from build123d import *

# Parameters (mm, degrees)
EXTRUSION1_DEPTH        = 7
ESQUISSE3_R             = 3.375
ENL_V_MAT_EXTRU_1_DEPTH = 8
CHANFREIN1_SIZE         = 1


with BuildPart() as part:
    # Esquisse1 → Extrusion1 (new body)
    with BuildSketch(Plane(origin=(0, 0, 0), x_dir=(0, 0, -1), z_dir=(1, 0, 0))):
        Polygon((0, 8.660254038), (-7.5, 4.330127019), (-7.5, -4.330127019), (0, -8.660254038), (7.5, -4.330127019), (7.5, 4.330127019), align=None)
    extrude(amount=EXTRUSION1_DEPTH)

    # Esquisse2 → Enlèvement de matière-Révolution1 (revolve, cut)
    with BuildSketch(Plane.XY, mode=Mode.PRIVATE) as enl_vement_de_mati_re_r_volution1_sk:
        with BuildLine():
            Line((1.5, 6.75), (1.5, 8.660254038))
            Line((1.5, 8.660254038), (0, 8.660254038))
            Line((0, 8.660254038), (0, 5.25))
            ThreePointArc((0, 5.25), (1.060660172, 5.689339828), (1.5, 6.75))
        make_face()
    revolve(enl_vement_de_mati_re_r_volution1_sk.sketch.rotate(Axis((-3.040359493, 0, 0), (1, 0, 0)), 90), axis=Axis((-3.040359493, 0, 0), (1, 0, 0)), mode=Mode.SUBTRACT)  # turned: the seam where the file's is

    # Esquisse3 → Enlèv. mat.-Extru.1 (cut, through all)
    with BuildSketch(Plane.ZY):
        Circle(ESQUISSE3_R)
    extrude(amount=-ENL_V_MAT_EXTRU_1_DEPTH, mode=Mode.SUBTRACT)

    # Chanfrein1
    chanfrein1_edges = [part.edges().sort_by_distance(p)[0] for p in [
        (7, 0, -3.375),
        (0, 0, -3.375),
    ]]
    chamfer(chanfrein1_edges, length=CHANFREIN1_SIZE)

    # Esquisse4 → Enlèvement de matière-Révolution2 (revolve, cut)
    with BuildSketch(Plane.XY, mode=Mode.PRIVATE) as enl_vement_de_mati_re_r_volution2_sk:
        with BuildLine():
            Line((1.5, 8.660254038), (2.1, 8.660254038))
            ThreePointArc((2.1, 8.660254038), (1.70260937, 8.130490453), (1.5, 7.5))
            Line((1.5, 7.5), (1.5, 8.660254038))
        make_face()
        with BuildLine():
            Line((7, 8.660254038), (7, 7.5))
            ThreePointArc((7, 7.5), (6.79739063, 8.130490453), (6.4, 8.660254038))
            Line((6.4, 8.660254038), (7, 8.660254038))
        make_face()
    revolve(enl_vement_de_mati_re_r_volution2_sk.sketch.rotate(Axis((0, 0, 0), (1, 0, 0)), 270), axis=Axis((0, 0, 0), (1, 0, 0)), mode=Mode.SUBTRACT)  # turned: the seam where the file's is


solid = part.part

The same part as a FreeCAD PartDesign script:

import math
import FreeCAD as App
import Part
import Sketcher
Q = App.Units.Quantity


def edges_at(feature, points):
    """Names of the edges that pass closest to the given points."""
    edges = feature.Shape.Edges
    near = lambda p: min(range(len(edges)), key=lambda i: edges[i].distToShape(Part.Vertex(*p))[0])
    return sorted({f"Edge{near(p) + 1}" for p in points})


def add_polygon(sketch, points):
    """Adds a closed chain of lines whose ends are joined by coincident constraints."""
    first, n = sketch.GeometryCount, len(points)
    for a, b in zip(points, points[1:] + points[:1]):
        sketch.addGeometry(Part.LineSegment(App.Vector(*a, 0), App.Vector(*b, 0)), False)
    for i in range(n):
        sketch.addConstraint(Sketcher.Constraint("Coincident", first + i, 2, first + (i + 1) % n, 1))

doc = App.newDocument("Part")
body = doc.addObject("PartDesign::Body", "Body")

# Sketch on YZ plane
sketch1 = body.newObject("Sketcher::SketchObject", "Sketch")
sketch1.AttachmentSupport = (doc.getObject("YZ_Plane"), [""])
sketch1.MapMode = "FlatFace"
add_polygon(sketch1, [(8.660254, 0), (4.330127, 7.5), (-4.330127, 7.5), (-8.660254, 0), (-4.330127, -7.5), (4.330127, -7.5)])  # lines 0-5
sketch1.addConstraint(Sketcher.Constraint("Horizontal", 1))
sketch1.addConstraint(Sketcher.Constraint("Horizontal", 4))
sketch1.addConstraint(Sketcher.Constraint("Symmetric", 0, 2, 3, 2, -1, 1))
sketch1.addConstraint(Sketcher.Constraint("Symmetric", 2, 2, 5, 2, -1, 1))
sketch1.addConstraint(Sketcher.Constraint("PointOnObject", 2, 2, -1))
sketch1.addConstraint(Sketcher.Constraint("Parallel", 2, 5))
sketch1.addConstraint(Sketcher.Constraint("Vertical", 1, 2, 3, 2))
sketch1.addConstraint(Sketcher.Constraint("Angle", 0, Q("120 deg")))
sketch1.addConstraint(Sketcher.Constraint("DistanceY", 3, 2, 1, 2, 15.0))
sketch1.addConstraint(Sketcher.Constraint("DistanceX", 1, 2, 1, 1, 8.660254))
pad1 = body.newObject("PartDesign::Pad", "Pad")
pad1.Profile = sketch1
pad1.Length = 7

# Sketch on XY plane
sketch2 = body.newObject("Sketcher::SketchObject", "Sketch001")
sketch2.AttachmentSupport = (doc.getObject("XY_Plane"), [""])
sketch2.MapMode = "FlatFace"
sketch2.addGeometry(Part.LineSegment(App.Vector(1.5, 6.75, 0), App.Vector(1.5, 8.660254, 0)), False)
sketch2.addGeometry(Part.LineSegment(App.Vector(1.5, 8.660254, 0), App.Vector(0, 8.660254, 0)), False)
sketch2.addGeometry(Part.LineSegment(App.Vector(0, 8.660254, 0), App.Vector(0, 5.25, 0)), False)
sketch2.addGeometry(Part.ArcOfCircle(Part.Circle(App.Vector(0, 6.75, 0), App.Vector(0, 0, 1), 1.5), math.radians(-90), math.radians(0)), False)
sketch2.addConstraint(Sketcher.Constraint("Coincident", 0, 2, 1, 1))
sketch2.addConstraint(Sketcher.Constraint("Coincident", 1, 2, 2, 1))
sketch2.addConstraint(Sketcher.Constraint("Coincident", 2, 2, 3, 1))
sketch2.addConstraint(Sketcher.Constraint("Tangent", 3, 2, 0, 1))
sketch2.addConstraint(Sketcher.Constraint("Vertical", 0))
sketch2.addConstraint(Sketcher.Constraint("Horizontal", 1))
sketch2.addConstraint(Sketcher.Constraint("Vertical", 2))
sketch2.addConstraint(Sketcher.Constraint("PointOnObject", 3, 3, -2))
sketch2.addConstraint(Sketcher.Constraint("PointOnObject", 1, 2, -2))
sketch2.addConstraint(Sketcher.Constraint("Radius", 3, 1.5))
sketch2.addConstraint(Sketcher.Constraint("DistanceY", -1, 1, 3, 3, 6.75))
sketch2.addConstraint(Sketcher.Constraint("DistanceY", 0, 1, 0, 2, 1.910254))
groove = body.newObject("PartDesign::Groove", "Groove")
groove.Profile = sketch2
groove.ReferenceAxis = (sketch2, ["H_Axis"])
groove.Angle = 360

# Sketch on YZ plane
sketch3 = body.newObject("Sketcher::SketchObject", "Sketch002")
sketch3.AttachmentSupport = (doc.getObject("YZ_Plane"), [""])
sketch3.MapMode = "FlatFace"
sketch3.addGeometry(Part.Circle(App.Vector(0, 0, 0), App.Vector(0, 0, 1), 3.375), False)
sketch3.addConstraint(Sketcher.Constraint("Coincident", 0, 3, -1, 1))
sketch3.addConstraint(Sketcher.Constraint("Diameter", 0, 6.75))
pocket1 = body.newObject("PartDesign::Pocket", "Pocket")
pocket1.Profile = sketch3
pocket1.Type = "ThroughAll"
pocket1.Reversed = True
doc.recompute()

chamfer = body.newObject("PartDesign::Chamfer", "Chamfer")
chamfer.Base = (pocket1, edges_at(pocket1, [(7, 0, -3.375), (0, 0, -3.375)]))
chamfer.Size = 1

# Sketch on XY plane
sketch4 = body.newObject("Sketcher::SketchObject", "Sketch003")
sketch4.AttachmentSupport = (doc.getObject("XY_Plane"), [""])
sketch4.MapMode = "FlatFace"
sketch4.addGeometry(Part.LineSegment(App.Vector(2.1, 8.660254, 0), App.Vector(1.5, 8.660254, 0)), False)
sketch4.addGeometry(Part.LineSegment(App.Vector(1.5, 8.660254, 0), App.Vector(1.5, 7.5, 0)), False)
sketch4.addGeometry(Part.ArcOfCircle(Part.Circle(App.Vector(3.479127, 7.211803, 0), App.Vector(0, 0, 1), 2), math.radians(133.595556), math.radians(171.714931)), False)
sketch4.addGeometry(Part.LineSegment(App.Vector(7, 7.5, 0), App.Vector(7, 8.660254, 0)), False)
sketch4.addGeometry(Part.LineSegment(App.Vector(7, 8.660254, 0), App.Vector(6.4, 8.660254, 0)), False)
sketch4.addGeometry(Part.ArcOfCircle(Part.Circle(App.Vector(5.020873, 7.211803, 0), App.Vector(0, 0, 1), 2), math.radians(8.285069), math.radians(46.404444)), False)
sketch4.addConstraint(Sketcher.Constraint("Coincident", 0, 2, 1, 1))
sketch4.addConstraint(Sketcher.Constraint("Coincident", 1, 2, 2, 2))
sketch4.addConstraint(Sketcher.Constraint("Coincident", 2, 1, 0, 1))
sketch4.addConstraint(Sketcher.Constraint("Coincident", 3, 2, 4, 1))
sketch4.addConstraint(Sketcher.Constraint("Coincident", 4, 2, 5, 2))
sketch4.addConstraint(Sketcher.Constraint("Coincident", 5, 1, 3, 1))
sketch4.addConstraint(Sketcher.Constraint("Horizontal", 0))
sketch4.addConstraint(Sketcher.Constraint("Vertical", 1))
sketch4.addConstraint(Sketcher.Constraint("Vertical", 3))
sketch4.addConstraint(Sketcher.Constraint("Horizontal", 4))
sketch4.addConstraint(Sketcher.Constraint("Equal", 2, 5))
sketch4.addConstraint(Sketcher.Constraint("Horizontal", 2, 3, 5, 3))
sketch4.addConstraint(Sketcher.Constraint("Horizontal", 2, 1, 3, 2))
sketch4.addConstraint(Sketcher.Constraint("Horizontal", 1, 2, 5, 1))
sketch4.addConstraint(Sketcher.Constraint("Radius", 2, 2.0))
sketch4.addConstraint(Sketcher.Constraint("DistanceX", 0, 2, 0, 1, 0.6))
sketch4.addConstraint(Sketcher.Constraint("DistanceX", -1, 1, 3, 2, 7.0))
sketch4.addConstraint(Sketcher.Constraint("DistanceX", -1, 1, 0, 2, 1.5))
sketch4.addConstraint(Sketcher.Constraint("DistanceY", -1, 1, 1, 2, 7.5))
sketch4.addConstraint(Sketcher.Constraint("DistanceY", 1, 2, 1, 1, 1.160254))
groove2 = body.newObject("PartDesign::Groove", "Groove001")
groove2.Profile = sketch4
groove2.ReferenceAxis = (sketch4, ["H_Axis"])
groove2.Angle = 360

doc.recompute()
